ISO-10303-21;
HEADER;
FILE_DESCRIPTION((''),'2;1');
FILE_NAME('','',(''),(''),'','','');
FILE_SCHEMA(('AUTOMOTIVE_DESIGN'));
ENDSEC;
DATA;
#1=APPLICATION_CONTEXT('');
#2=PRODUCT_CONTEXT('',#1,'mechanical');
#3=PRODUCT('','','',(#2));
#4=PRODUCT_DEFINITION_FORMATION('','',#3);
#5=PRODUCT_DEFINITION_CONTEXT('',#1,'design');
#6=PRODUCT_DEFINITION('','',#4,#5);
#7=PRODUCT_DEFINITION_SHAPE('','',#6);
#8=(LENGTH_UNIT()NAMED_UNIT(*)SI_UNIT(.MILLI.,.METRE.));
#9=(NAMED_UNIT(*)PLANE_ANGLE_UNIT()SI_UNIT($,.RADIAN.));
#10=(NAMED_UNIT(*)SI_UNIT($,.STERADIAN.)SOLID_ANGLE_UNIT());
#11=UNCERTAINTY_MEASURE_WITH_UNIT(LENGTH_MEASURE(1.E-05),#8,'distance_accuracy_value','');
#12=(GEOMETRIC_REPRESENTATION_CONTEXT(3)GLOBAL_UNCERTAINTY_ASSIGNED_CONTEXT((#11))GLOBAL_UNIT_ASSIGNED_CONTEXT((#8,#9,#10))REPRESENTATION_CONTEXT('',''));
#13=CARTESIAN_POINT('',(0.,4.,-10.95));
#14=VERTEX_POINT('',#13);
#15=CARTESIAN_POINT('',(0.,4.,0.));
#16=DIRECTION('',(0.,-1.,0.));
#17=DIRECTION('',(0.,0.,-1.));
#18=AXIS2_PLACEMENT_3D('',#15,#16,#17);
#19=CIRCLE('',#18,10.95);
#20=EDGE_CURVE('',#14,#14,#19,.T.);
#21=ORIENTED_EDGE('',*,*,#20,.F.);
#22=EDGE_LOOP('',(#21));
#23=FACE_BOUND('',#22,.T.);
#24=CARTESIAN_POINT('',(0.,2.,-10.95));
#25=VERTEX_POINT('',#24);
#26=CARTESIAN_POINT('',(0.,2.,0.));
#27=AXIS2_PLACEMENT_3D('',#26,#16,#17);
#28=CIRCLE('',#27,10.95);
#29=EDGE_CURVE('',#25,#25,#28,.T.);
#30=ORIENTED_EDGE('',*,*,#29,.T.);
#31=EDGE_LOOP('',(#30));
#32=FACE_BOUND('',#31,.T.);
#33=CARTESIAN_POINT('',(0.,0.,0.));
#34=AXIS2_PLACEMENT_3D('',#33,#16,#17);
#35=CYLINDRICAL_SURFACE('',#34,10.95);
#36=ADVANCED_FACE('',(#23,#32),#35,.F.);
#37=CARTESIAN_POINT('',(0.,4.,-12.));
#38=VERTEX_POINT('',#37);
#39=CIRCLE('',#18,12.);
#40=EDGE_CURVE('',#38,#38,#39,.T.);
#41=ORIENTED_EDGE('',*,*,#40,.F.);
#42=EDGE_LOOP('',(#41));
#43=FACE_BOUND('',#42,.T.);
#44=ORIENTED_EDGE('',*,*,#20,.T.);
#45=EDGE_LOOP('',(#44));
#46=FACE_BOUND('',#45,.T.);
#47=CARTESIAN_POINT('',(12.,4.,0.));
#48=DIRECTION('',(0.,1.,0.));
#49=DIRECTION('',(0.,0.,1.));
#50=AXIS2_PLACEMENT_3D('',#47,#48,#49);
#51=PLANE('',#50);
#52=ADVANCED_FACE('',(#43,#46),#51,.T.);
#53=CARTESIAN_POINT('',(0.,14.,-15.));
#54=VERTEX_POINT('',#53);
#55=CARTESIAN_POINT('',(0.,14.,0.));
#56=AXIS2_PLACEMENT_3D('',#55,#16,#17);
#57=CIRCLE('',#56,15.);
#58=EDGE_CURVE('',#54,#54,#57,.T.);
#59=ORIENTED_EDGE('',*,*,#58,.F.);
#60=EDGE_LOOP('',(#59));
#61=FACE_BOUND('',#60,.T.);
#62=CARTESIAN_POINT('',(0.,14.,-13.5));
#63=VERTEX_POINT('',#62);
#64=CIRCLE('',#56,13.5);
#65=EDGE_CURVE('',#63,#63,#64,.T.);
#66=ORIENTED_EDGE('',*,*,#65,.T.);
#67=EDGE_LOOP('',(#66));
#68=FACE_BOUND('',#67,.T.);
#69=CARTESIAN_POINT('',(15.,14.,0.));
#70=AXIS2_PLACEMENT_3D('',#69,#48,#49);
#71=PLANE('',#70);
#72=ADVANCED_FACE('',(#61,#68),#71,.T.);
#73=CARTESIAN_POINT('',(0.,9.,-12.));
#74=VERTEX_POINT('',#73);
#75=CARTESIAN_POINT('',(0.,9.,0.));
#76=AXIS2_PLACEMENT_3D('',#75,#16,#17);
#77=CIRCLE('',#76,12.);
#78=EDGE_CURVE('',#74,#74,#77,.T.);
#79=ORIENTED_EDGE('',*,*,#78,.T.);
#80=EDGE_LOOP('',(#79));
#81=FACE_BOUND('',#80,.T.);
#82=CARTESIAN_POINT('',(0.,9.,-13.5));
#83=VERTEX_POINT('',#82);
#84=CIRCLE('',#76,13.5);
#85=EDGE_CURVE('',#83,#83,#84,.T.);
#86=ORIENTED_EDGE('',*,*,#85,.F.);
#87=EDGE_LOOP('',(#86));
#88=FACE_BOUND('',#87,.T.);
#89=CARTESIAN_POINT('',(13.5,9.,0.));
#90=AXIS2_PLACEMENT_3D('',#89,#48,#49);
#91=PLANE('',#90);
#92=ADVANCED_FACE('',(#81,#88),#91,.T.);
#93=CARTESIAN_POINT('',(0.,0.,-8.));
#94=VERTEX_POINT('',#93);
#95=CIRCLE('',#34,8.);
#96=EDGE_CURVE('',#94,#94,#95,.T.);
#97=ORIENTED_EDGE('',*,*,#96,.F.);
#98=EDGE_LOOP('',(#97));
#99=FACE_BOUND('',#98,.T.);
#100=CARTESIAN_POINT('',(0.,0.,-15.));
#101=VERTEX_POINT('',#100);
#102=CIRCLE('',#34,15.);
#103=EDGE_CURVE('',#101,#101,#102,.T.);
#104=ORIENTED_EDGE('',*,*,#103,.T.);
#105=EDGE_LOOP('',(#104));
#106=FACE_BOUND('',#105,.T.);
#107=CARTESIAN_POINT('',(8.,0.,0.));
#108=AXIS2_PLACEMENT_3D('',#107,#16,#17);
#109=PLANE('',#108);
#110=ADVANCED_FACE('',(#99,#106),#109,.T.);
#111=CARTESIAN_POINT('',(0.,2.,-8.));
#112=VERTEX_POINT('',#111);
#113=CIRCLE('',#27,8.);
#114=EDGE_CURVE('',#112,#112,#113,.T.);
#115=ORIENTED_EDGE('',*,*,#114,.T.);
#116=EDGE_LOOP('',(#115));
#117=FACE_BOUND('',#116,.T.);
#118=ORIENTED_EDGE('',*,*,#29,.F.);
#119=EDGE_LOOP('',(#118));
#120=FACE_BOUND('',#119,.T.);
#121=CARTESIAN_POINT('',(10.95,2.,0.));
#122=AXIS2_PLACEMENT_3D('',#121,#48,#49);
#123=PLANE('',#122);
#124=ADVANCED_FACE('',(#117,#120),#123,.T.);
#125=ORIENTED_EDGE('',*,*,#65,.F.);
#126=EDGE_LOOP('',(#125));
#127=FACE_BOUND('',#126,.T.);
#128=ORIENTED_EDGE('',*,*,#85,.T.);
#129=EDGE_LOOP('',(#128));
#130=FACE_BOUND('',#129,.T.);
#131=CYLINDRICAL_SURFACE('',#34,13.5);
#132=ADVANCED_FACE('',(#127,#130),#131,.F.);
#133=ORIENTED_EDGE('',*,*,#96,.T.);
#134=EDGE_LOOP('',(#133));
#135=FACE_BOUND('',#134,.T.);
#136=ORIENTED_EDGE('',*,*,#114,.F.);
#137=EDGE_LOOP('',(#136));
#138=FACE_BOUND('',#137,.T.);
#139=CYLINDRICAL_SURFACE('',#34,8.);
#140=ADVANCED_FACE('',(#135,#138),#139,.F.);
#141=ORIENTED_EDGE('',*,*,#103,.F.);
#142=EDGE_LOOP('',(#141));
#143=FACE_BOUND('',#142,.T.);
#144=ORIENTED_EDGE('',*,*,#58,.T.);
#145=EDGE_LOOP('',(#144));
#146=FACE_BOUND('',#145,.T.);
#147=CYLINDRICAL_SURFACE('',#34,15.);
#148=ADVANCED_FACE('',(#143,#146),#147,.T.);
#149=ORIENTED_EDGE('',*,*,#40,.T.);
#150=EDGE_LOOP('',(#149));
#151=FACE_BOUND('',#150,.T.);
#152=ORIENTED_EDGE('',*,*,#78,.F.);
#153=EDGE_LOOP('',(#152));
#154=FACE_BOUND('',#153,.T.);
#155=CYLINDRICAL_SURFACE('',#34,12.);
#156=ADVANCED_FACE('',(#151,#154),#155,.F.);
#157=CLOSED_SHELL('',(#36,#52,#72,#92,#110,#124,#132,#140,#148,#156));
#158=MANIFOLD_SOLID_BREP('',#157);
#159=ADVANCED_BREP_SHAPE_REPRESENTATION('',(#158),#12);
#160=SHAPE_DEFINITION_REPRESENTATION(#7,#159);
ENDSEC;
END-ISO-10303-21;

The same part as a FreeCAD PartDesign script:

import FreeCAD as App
import Part
import Sketcher
Q = App.Units.Quantity


def add_polygon(sketch, points):
    """Adds a closed chain of lines whose ends are joined by coincident constraints."""
    first, n = sketch.GeometryCount, len(points)
    for a, b in zip(points, points[1:] + points[:1]):
        sketch.addGeometry(Part.LineSegment(App.Vector(*a, 0), App.Vector(*b, 0)), False)
    for i in range(n):
        sketch.addConstraint(Sketcher.Constraint("Coincident", first + i, 2, first + (i + 1) % n, 1))

doc = App.newDocument("Part")
body = doc.addObject("PartDesign::Body", "Body")

# Sketch on XY plane
sketch1 = body.newObject("Sketcher::SketchObject", "Sketch")
sketch1.AttachmentSupport = (doc.getObject("XY_Plane"), [""])
sketch1.MapMode = "FlatFace"
add_polygon(sketch1, [(8, 0), (15, 0), (15, 14), (13.5, 14), (13.5, 9), (12, 9), (12, 4), (10.9, 4), (10.9, 2), (8, 2)])  # lines 0-9
sketch1.addConstraint(Sketcher.Constraint("Horizontal", 0))
sketch1.addConstraint(Sketcher.Constraint("Vertical", 1))
sketch1.addConstraint(Sketcher.Constraint("Horizontal", 2))
sketch1.addConstraint(Sketcher.Constraint("Vertical", 3))
sketch1.addConstraint(Sketcher.Constraint("Horizontal", 4))
sketch1.addConstraint(Sketcher.Constraint("Vertical", 5))
sketch1.addConstraint(Sketcher.Constraint("Horizontal", 6))
sketch1.addConstraint(Sketcher.Constraint("Vertical", 7))
sketch1.addConstraint(Sketcher.Constraint("Horizontal", 8))
sketch1.addConstraint(Sketcher.Constraint("Vertical", 9))
sketch1.addConstraint(Sketcher.Constraint("PointOnObject", 0, 2, -1))
sketch1.addConstraint(Sketcher.Constraint("Equal", 2, 4))
sketch1.addConstraint(Sketcher.Constraint("Equal", 3, 5))
sketch1.addConstraint(Sketcher.Constraint("Equal", 7, 9))
sketch1.addConstraint(Sketcher.Constraint("DistanceX", 0, 1, 0, 2, Q("7 mm")))
sketch1.addConstraint(Sketcher.Constraint("DistanceY", 1, 1, 1, 2, Q("14 mm")))
sketch1.addConstraint(Sketcher.Constraint("DistanceY", 3, 2, 3, 1, Q("5 mm")))
sketch1.addConstraint(Sketcher.Constraint("DistanceX", 2, 2, 2, 1, Q("1.5 mm")))
sketch1.addConstraint(Sketcher.Constraint("DistanceX", -1, 1, 0, 2, Q("15 mm")))
sketch1.addConstraint(Sketcher.Constraint("DistanceX", 6, 2, 6, 1, Q("1.05 mm")))
revolution = body.newObject("PartDesign::Revolution", "Revolution")
revolution.Profile = sketch1
revolution.ReferenceAxis = (sketch1, ["V_Axis"])
revolution.Angle = 360

doc.recompute()
